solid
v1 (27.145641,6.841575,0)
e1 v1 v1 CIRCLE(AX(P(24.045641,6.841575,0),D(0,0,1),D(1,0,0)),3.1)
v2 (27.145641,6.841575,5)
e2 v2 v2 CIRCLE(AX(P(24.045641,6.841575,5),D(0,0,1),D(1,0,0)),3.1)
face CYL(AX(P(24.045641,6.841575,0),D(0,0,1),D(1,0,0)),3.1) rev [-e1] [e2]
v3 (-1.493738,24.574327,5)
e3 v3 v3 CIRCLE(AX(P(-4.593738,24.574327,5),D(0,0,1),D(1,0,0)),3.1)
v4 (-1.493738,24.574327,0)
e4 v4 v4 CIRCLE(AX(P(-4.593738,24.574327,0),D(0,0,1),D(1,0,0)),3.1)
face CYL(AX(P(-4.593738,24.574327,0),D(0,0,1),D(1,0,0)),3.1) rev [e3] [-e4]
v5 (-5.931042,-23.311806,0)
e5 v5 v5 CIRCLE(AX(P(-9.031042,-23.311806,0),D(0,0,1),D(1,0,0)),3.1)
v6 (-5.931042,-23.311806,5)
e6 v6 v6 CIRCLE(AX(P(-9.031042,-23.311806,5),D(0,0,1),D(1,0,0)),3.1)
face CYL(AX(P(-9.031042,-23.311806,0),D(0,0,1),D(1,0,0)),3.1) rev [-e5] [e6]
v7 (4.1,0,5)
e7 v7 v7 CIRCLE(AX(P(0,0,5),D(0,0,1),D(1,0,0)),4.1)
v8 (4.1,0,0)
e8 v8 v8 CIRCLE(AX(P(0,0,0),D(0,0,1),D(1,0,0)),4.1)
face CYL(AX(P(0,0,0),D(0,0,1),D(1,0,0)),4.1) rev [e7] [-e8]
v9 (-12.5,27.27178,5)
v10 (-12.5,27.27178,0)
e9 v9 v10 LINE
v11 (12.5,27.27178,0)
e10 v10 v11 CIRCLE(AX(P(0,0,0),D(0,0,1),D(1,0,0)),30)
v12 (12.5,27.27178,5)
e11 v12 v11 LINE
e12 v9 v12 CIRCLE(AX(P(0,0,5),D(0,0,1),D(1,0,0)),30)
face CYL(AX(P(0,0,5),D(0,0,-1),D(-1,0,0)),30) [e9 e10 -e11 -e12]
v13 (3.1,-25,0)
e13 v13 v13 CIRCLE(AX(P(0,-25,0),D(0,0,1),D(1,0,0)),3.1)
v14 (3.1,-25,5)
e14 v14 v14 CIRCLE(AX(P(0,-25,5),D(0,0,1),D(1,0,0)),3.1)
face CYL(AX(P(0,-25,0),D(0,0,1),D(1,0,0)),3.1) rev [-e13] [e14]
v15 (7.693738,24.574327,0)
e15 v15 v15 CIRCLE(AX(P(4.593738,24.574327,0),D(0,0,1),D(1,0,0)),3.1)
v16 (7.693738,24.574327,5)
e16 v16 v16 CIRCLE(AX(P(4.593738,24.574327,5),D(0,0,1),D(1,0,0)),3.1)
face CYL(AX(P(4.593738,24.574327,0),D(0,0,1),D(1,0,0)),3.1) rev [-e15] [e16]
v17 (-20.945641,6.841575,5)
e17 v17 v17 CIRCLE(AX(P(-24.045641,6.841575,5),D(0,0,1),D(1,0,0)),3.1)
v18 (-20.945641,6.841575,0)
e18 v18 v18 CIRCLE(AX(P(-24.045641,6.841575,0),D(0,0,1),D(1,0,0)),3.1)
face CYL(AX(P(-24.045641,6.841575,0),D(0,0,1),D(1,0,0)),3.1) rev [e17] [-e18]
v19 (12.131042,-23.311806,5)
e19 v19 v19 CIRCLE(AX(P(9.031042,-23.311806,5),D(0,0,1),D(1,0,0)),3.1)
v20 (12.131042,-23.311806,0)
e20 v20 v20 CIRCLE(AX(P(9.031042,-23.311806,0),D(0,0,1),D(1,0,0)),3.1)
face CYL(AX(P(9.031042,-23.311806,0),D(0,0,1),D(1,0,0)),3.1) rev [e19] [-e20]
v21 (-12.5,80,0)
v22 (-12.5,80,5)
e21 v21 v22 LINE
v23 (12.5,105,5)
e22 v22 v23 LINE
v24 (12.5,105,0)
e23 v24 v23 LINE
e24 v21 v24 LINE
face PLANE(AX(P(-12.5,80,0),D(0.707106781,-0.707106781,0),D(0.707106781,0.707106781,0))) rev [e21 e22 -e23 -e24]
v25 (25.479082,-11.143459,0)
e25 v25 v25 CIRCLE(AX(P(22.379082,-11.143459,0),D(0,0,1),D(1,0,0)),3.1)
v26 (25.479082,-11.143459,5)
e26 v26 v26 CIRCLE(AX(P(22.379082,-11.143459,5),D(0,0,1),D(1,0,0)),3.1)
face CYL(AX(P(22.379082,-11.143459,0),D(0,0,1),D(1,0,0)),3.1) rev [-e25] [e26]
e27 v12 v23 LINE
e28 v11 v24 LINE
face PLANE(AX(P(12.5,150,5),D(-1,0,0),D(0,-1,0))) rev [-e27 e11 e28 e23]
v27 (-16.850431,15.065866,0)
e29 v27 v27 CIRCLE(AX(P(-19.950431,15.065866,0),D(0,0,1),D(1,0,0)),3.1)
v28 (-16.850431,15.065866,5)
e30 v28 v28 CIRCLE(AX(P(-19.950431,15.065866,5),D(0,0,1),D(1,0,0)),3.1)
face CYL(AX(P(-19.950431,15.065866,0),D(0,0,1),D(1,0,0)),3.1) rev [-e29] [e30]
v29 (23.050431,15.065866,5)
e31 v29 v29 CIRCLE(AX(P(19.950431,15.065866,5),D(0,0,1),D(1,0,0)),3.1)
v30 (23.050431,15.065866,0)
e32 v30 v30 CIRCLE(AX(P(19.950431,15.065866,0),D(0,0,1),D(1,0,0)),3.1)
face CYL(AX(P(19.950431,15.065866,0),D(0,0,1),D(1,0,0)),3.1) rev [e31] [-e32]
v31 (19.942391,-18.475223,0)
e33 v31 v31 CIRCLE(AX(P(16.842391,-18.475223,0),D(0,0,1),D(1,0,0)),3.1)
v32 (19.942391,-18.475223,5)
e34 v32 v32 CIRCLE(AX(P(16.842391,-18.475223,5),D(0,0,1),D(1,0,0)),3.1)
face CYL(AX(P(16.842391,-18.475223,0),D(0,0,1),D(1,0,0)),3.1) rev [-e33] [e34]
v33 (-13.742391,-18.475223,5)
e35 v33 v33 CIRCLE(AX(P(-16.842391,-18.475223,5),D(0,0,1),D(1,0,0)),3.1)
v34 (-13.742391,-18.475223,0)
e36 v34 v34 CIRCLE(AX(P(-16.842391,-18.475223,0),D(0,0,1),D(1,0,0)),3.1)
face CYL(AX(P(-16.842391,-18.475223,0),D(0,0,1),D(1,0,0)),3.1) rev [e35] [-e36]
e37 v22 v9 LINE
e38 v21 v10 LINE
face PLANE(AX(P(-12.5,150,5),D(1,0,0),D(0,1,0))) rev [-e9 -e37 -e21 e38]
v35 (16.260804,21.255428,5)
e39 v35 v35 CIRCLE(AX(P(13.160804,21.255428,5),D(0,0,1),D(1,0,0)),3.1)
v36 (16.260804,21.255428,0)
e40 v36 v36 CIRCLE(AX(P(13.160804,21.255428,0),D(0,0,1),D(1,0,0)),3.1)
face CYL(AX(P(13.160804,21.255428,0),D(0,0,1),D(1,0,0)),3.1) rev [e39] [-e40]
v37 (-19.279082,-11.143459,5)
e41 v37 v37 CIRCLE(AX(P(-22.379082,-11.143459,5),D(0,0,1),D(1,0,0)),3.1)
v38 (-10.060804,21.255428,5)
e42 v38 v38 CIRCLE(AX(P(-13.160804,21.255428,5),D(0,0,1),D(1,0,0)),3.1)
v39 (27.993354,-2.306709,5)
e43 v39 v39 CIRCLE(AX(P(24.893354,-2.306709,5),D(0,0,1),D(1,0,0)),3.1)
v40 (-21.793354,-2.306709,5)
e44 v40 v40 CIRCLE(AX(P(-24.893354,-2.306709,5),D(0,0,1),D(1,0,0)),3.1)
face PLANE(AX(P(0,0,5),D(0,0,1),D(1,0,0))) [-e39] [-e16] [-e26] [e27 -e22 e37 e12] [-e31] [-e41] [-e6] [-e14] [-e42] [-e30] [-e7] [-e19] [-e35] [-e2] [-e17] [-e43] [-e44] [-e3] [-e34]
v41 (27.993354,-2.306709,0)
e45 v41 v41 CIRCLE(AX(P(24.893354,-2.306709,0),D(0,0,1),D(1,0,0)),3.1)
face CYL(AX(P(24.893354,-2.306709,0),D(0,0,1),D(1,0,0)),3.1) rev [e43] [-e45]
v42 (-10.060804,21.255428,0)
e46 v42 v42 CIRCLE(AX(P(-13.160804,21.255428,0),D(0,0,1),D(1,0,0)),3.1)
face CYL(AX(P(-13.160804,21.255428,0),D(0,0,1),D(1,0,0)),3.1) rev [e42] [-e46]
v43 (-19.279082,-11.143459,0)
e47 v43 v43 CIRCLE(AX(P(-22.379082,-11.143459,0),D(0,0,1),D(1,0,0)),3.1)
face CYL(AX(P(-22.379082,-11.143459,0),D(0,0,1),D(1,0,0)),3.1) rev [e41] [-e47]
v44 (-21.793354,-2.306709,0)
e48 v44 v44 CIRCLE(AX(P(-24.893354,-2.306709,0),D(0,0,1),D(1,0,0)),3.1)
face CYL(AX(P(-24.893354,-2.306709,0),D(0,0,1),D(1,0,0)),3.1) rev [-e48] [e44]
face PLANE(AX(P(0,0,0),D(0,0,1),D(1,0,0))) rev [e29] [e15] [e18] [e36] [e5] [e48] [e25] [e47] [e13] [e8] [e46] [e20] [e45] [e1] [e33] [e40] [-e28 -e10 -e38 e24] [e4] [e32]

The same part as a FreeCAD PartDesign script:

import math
import FreeCAD as App
import Part
import Sketcher
from FreeCAD import Vector
Q = App.Units.Quantity


def add_polygon(sketch, points):
    """Adds a closed chain of lines whose ends are joined by coincident constraints."""
    first, n = sketch.GeometryCount, len(points)
    for a, b in zip(points, points[1:] + points[:1]):
        sketch.addGeometry(Part.LineSegment(App.Vector(*a, 0), App.Vector(*b, 0)), False)
    for i in range(n):
        sketch.addConstraint(Sketcher.Constraint("Coincident", first + i, 2, first + (i + 1) % n, 1))

doc = App.newDocument("Part")
params = doc.addObject("Spreadsheet::Sheet", "Params")
for row, (alias, value) in enumerate([
    ("sketch1_radius", "30 mm"),
    ("sketch1_width", "25 mm"),
    ("pad1_length", "5 mm"),
    ("sketch2_width", "25 mm"),
    ("pocket1_length", "5 mm"),
    ("sketch3_width", "25 mm"),
    ("pocket2_length", "5 mm"),
    ("sketch4_diameter", "8.2 mm"),
    ("pocket3_length", "5 mm"),
    ("sketch5_diameter", "6.2 mm"),
    ("pocket4_length", "5 mm"),
    ("sketch6_height", "30 mm"),
    ("pocket5_length", "5 mm"),
    ("sketch7_width", "25 mm"),
    ("sketch7_height", "35 mm"),
    ("pad2_length", "5 mm"),
    ("sketch8_width", "25 mm"),
    ("pocket6_length", "5 mm"),
], start=1):
    params.set(f"A{row}", alias)
    params.set(f"B{row}", "=" + value)
    params.setAlias(f"B{row}", alias)

body = doc.addObject("PartDesign::Body", "Body")

sketch1 = body.newObject("Sketcher::SketchObject", "Sketch")
sketch1.AttachmentSupport = (doc.getObject("XY_Plane"), [""])
sketch1.MapMode = "FlatFace"
sketch1.addGeometry([
    Part.LineSegment(Vector(12.5, 150, 0), Vector(-12.5, 150, 0)),
    Part.LineSegment(Vector(-12.5, 150, 0), Vector(-12.5, 27.27178, 0)),
    Part.ArcOfCircle(Part.Circle(Vector(0, 0, 0), Vector(0, 0, 1), 30), math.radians(114.624318), math.radians(425.375682)),
    Part.LineSegment(Vector(12.5, 27.27178, 0), Vector(12.5, 150, 0)),
], False)
sketch1.addConstraint([
    Sketcher.Constraint("Coincident", 0, 2, 1, 1),
    Sketcher.Constraint("Coincident", 1, 2, 2, 1),
    Sketcher.Constraint("Coincident", 2, 2, 3, 1),
    Sketcher.Constraint("Coincident", 3, 2, 0, 1),
    Sketcher.Constraint("Horizontal", 0),
    Sketcher.Constraint("Vertical", 1),
    Sketcher.Constraint("Vertical", 3),
    Sketcher.Constraint("Coincident", 2, 3, -1, 1),
    Sketcher.Constraint("Horizontal", 1, 2, 2, 2),
    Sketcher.Constraint("Radius", 2, 30.0),
    Sketcher.Constraint("DistanceX", 0, 2, 0, 1, 25.0),
    Sketcher.Constraint("DistanceY", -1, 1, 0, 2, 150.0),
])
sketch1.setExpression("Constraints[9]", "Params.sketch1_radius")
sketch1.setExpression("Constraints[10]", "Params.sketch1_width")
pad1 = body.newObject("PartDesign::Pad", "Pad")
pad1.Profile = sketch1
pad1.setExpression("Length", "Params.pad1_length")

sketch2 = body.newObject("Sketcher::SketchObject", "Sketch001")
sketch2.AttachmentSupport = (doc.getObject("XY_Plane"), [""])
sketch2.MapMode = "FlatFace"
sketch2.AttachmentOffset = App.Placement(Vector(0, 0, 5), App.Rotation())
add_polygon(sketch2, [(-12.5, 150), (-12.5, 125), (12.5, 125), (12.5, 150)])
sketch2.addConstraint([
    Sketcher.Constraint("Vertical", 0),
    Sketcher.Constraint("Horizontal", 1),
    Sketcher.Constraint("Vertical", 2),
    Sketcher.Constraint("Horizontal", 3),
    Sketcher.Constraint("Equal", 3, 0),
    Sketcher.Constraint("DistanceX", 1, 1, 1, 2, 25.0),
    Sketcher.Constraint("DistanceY", -1, 1, 0, 2, 125.0),
    Sketcher.Constraint("DistanceX", 0, 2, -1, 1, 12.5),
])
sketch2.setExpression("Constraints[9]", "Params.sketch2_width")
pocket1 = body.newObject("PartDesign::Pocket", "Pocket")
pocket1.Profile = sketch2
pocket1.setExpression("Length", "Params.pocket1_length")

sketch3 = body.newObject("Sketcher::SketchObject", "Sketch002")
sketch3.AttachmentSupport = (doc.getObject("XY_Plane"), [""])
sketch3.MapMode = "FlatFace"
sketch3.AttachmentOffset = App.Placement(Vector(0, 0, 5), App.Rotation())
add_polygon(sketch3, [(12.5, 125), (-12.5, 125), (-12.5, 100)])
sketch3.addConstraint([
    Sketcher.Constraint("Horizontal", 0),
    Sketcher.Constraint("Vertical", 1),
    Sketcher.Constraint("Equal", 0, 1),
    Sketcher.Constraint("DistanceX", 0, 2, 0, 1, 25.0),
    Sketcher.Constraint("DistanceY", -1, 1, 0, 2, 125.0),
    Sketcher.Constraint("DistanceX", 0, 2, -1, 1, 12.5),
])
sketch3.setExpression("Constraints[6]", "Params.sketch3_width")
pocket2 = body.newObject("PartDesign::Pocket", "Pocket001")
pocket2.Profile = sketch3
pocket2.setExpression("Length", "Params.pocket2_length")

sketch4 = body.newObject("Sketcher::SketchObject", "Sketch003")
sketch4.AttachmentSupport = (doc.getObject("XY_Plane"), [""])
sketch4.MapMode = "FlatFace"
sketch4.AttachmentOffset = App.Placement(Vector(0, 0, 5), App.Rotation())
sketch4.addGeometry(Part.Circle(Vector(0, 0, 0), Vector(0, 0, 1), 4.1), False)
sketch4.addConstraint([
    Sketcher.Constraint("Coincident", 0, 3, -1, 1),
    Sketcher.Constraint("Diameter", 0, 8.2),
])
sketch4.setExpression("Constraints[1]", "Params.sketch4_diameter")
pocket3 = body.newObject("PartDesign::Pocket", "Pocket002")
pocket3.Profile = sketch4
pocket3.setExpression("Length", "Params.pocket3_length")

sketch5 = body.newObject("Sketcher::SketchObject", "Sketch004")
sketch5.AttachmentSupport = (doc.getObject("XY_Plane"), [""])
sketch5.MapMode = "FlatFace"
sketch5.AttachmentOffset = App.Placement(Vector(0, 0, 5), App.Rotation())
sketch5.addGeometry([
    Part.Circle(Vector(0, -25, 0), Vector(0, 0, 1), 3.1),
    Part.Circle(Vector(-9.031042, -23.311806, 0), Vector(0, 0, 1), 3.1),
    Part.Circle(Vector(-16.842391, -18.475223, 0), Vector(0, 0, 1), 3.1),
    Part.Circle(Vector(-22.379082, -11.143459, 0), Vector(0, 0, 1), 3.1),
    Part.Circle(Vector(-24.893354, -2.306709, 0), Vector(0, 0, 1), 3.1),
    Part.Circle(Vector(-24.045641, 6.841575, 0), Vector(0, 0, 1), 3.1),
    Part.Circle(Vector(-19.950431, 15.065866, 0), Vector(0, 0, 1), 3.1),
    Part.Circle(Vector(-13.160804, 21.255428, 0), Vector(0, 0, 1), 3.1),
    Part.Circle(Vector(-4.593738, 24.574327, 0), Vector(0, 0, 1), 3.1),
    Part.Circle(Vector(4.593738, 24.574327, 0), Vector(0, 0, 1), 3.1),
    Part.Circle(Vector(13.160804, 21.255428, 0), Vector(0, 0, 1), 3.1),
    Part.Circle(Vector(19.950431, 15.065866, 0), Vector(0, 0, 1), 3.1),
    Part.Circle(Vector(24.045641, 6.841575, 0), Vector(0, 0, 1), 3.1),
    Part.Circle(Vector(24.893354, -2.306709, 0), Vector(0, 0, 1), 3.1),
    Part.Circle(Vector(22.379082, -11.143459, 0), Vector(0, 0, 1), 3.1),
    Part.Circle(Vector(16.842391, -18.475223, 0), Vector(0, 0, 1), 3.1),
    Part.Circle(Vector(9.031042, -23.311806, 0), Vector(0, 0, 1), 3.1),
], False)
sketch5.addConstraint([
    Sketcher.Constraint("Equal", 0, 1),
    Sketcher.Constraint("Equal", 1, 2),
    Sketcher.Constraint("Equal", 2, 3),
    Sketcher.Constraint("Equal", 3, 4),
    Sketcher.Constraint("Equal", 4, 5),
    Sketcher.Constraint("Equal", 5, 6),
    Sketcher.Constraint("Equal", 6, 7),
    Sketcher.Constraint("Equal", 7, 8),
    Sketcher.Constraint("Equal", 8, 9),
    Sketcher.Constraint("Equal", 9, 10),
    Sketcher.Constraint("Equal", 10, 11),
    Sketcher.Constraint("Equal", 11, 12),
    Sketcher.Constraint("Equal", 12, 13),
    Sketcher.Constraint("Equal", 13, 14),
    Sketcher.Constraint("Equal", 14, 15),
    Sketcher.Constraint("Equal", 15, 16),
    Sketcher.Constraint("Symmetric", 8, 3, 9, 3, -2),
    Sketcher.Constraint("Symmetric", 7, 3, 10, 3, -2),
    Sketcher.Constraint("Symmetric", 6, 3, 11, 3, -2),
    Sketcher.Constraint("Symmetric", 5, 3, 12, 3, -2),
    Sketcher.Constraint("Symmetric", 4, 3, 13, 3, -2),
    Sketcher.Constraint("Symmetric", 3, 3, 14, 3, -2),
    Sketcher.Constraint("Symmetric", 2, 3, 15, 3, -2),
    Sketcher.Constraint("Symmetric", 1, 3, 16, 3, -2),
    Sketcher.Constraint("PointOnObject", 0, 3, -2),
    Sketcher.Constraint("Diameter", 0, 6.2),
    Sketcher.Constraint("DistanceY", 0, 3, -1, 1, 25.0),
    Sketcher.Constraint("DistanceX", 5, 3, 1, 3, 15.014599),
    Sketcher.Constraint("DistanceY", 7, 3, 8, 3, 3.318899),
    Sketcher.Constraint("DistanceX", 1, 3, -1, 1, 9.031042),
    Sketcher.Constraint("DistanceX", 2, 3, -1, 1, 16.842391),
    Sketcher.Constraint("DistanceY", 3, 3, -1, 1, 11.143459),
    Sketcher.Constraint("DistanceY", 4, 3, -1, 1, 2.306709),
    Sketcher.Constraint("DistanceX", 6, 3, -1, 1, 19.950431),
    Sketcher.Constraint("DistanceY", -1, 1, 7, 3, 21.255428),
    Sketcher.Constraint("DistanceX", 3, 3, 2, 3, 5.536691),
    Sketcher.Constraint("DistanceY", 1, 3, 5, 3, 30.15338),
    Sketcher.Constraint("DistanceY", 5, 3, 6, 3, 8.224291),
    Sketcher.Constraint("DistanceY", 2, 3, 6, 3, 33.541089),
    Sketcher.Constraint("DistanceX", 4, 3, 7, 3, 11.73255),
    Sketcher.Constraint("DistanceX", 3, 3, 7, 3, 9.218278),
    Sketcher.Constraint("DistanceY", 2, 3, 7, 3, 39.730651),
    Sketcher.Constraint("DistanceX", 6, 3, 9, 3, 24.544169),
])
sketch5.setExpression("Constraints[25]", "Params.sketch5_diameter")
pocket4 = body.newObject("PartDesign::Pocket", "Pocket003")
pocket4.Profile = sketch5
pocket4.setExpression("Length", "Params.pocket4_length")

sketch6 = body.newObject("Sketcher::SketchObject", "Sketch005")
sketch6.AttachmentSupport = (doc.getObject("XY_Plane"), [""])
sketch6.MapMode = "FlatFace"
sketch6.AttachmentOffset = App.Placement(Vector(0, 0, 5), App.Rotation())
add_polygon(sketch6, [(12.5, 125), (-12.5, 100), (-12.5, 70), (12.5, 95)])
sketch6.addConstraint([
    Sketcher.Constraint("Vertical", 1),
    Sketcher.Constraint("Vertical", 3),
    Sketcher.Constraint("Parallel", 0, 2),
    Sketcher.Constraint("DistanceY", 1, 2, 1, 1, 30.0),
    Sketcher.Constraint("Angle", 0, Q("-135 deg")),
    Sketcher.Constraint("DistanceY", -1, 1, 0, 2, 100.0),
    Sketcher.Constraint("DistanceY", -1, 1, 2, 2, 95.0),
    Sketcher.Constraint("DistanceX", 0, 2, -1, 1, 12.5),
])
sketch6.setExpression("Constraints[7]", "Params.sketch6_height")
pocket5 = body.newObject("PartDesign::Pocket", "Pocket004")
pocket5.Profile = sketch6
pocket5.setExpression("Length", "Params.pocket5_length")

sketch7 = body.newObject("Sketcher::SketchObject", "Sketch006")
sketch7.AttachmentSupport = (doc.getObject("XY_Plane"), [""])
sketch7.MapMode = "FlatFace"
sketch7.AttachmentOffset = App.Placement(Vector(0, 0, 5), App.Rotation())
add_polygon(sketch7, [(-12.5, 105), (-12.5, 70), (12.5, 70), (12.5, 105)])
sketch7.addConstraint([
    Sketcher.Constraint("Vertical", 0),
    Sketcher.Constraint("Horizontal", 1),
    Sketcher.Constraint("Vertical", 2),
    Sketcher.Constraint("Horizontal", 3),
    Sketcher.Constraint("DistanceX", 1, 1, 1, 2, 25.0),
    Sketcher.Constraint("DistanceY", 0, 2, 0, 1, 35.0),
    Sketcher.Constraint("DistanceY", -1, 1, 0, 2, 70.0),
    Sketcher.Constraint("DistanceX", 0, 2, -1, 1, 12.5),
])
sketch7.setExpression("Constraints[8]", "Params.sketch7_width")
sketch7.setExpression("Constraints[9]", "Params.sketch7_height")
pad2 = body.newObject("PartDesign::Pad", "Pad001")
pad2.Profile = sketch7
pad2.setExpression("Length", "Params.pad2_length")
pad2.Reversed = True

sketch8 = body.newObject("Sketcher::SketchObject", "Sketch007")
sketch8.AttachmentSupport = (doc.getObject("XY_Plane"), [""])
sketch8.MapMode = "FlatFace"
sketch8.AttachmentOffset = App.Placement(Vector(0, 0, 5), App.Rotation())
add_polygon(sketch8, [(12.5, 105), (-12.5, 105), (-12.5, 80)])
sketch8.addConstraint([
    Sketcher.Constraint("Horizontal", 0),
    Sketcher.Constraint("Vertical", 1),
    Sketcher.Constraint("Equal", 0, 1),
    Sketcher.Constraint("DistanceX", 0, 2, 0, 1, 25.0),
    Sketcher.Constraint("DistanceY", -1, 1, 0, 2, 105.0),
    Sketcher.Constraint("DistanceX", 0, 2, -1, 1, 12.5),
])
sketch8.setExpression("Constraints[6]", "Params.sketch8_width")
pocket6 = body.newObject("PartDesign::Pocket", "Pocket005")
pocket6.Profile = sketch8
pocket6.setExpression("Length", "Params.pocket6_length")

doc.recompute()
